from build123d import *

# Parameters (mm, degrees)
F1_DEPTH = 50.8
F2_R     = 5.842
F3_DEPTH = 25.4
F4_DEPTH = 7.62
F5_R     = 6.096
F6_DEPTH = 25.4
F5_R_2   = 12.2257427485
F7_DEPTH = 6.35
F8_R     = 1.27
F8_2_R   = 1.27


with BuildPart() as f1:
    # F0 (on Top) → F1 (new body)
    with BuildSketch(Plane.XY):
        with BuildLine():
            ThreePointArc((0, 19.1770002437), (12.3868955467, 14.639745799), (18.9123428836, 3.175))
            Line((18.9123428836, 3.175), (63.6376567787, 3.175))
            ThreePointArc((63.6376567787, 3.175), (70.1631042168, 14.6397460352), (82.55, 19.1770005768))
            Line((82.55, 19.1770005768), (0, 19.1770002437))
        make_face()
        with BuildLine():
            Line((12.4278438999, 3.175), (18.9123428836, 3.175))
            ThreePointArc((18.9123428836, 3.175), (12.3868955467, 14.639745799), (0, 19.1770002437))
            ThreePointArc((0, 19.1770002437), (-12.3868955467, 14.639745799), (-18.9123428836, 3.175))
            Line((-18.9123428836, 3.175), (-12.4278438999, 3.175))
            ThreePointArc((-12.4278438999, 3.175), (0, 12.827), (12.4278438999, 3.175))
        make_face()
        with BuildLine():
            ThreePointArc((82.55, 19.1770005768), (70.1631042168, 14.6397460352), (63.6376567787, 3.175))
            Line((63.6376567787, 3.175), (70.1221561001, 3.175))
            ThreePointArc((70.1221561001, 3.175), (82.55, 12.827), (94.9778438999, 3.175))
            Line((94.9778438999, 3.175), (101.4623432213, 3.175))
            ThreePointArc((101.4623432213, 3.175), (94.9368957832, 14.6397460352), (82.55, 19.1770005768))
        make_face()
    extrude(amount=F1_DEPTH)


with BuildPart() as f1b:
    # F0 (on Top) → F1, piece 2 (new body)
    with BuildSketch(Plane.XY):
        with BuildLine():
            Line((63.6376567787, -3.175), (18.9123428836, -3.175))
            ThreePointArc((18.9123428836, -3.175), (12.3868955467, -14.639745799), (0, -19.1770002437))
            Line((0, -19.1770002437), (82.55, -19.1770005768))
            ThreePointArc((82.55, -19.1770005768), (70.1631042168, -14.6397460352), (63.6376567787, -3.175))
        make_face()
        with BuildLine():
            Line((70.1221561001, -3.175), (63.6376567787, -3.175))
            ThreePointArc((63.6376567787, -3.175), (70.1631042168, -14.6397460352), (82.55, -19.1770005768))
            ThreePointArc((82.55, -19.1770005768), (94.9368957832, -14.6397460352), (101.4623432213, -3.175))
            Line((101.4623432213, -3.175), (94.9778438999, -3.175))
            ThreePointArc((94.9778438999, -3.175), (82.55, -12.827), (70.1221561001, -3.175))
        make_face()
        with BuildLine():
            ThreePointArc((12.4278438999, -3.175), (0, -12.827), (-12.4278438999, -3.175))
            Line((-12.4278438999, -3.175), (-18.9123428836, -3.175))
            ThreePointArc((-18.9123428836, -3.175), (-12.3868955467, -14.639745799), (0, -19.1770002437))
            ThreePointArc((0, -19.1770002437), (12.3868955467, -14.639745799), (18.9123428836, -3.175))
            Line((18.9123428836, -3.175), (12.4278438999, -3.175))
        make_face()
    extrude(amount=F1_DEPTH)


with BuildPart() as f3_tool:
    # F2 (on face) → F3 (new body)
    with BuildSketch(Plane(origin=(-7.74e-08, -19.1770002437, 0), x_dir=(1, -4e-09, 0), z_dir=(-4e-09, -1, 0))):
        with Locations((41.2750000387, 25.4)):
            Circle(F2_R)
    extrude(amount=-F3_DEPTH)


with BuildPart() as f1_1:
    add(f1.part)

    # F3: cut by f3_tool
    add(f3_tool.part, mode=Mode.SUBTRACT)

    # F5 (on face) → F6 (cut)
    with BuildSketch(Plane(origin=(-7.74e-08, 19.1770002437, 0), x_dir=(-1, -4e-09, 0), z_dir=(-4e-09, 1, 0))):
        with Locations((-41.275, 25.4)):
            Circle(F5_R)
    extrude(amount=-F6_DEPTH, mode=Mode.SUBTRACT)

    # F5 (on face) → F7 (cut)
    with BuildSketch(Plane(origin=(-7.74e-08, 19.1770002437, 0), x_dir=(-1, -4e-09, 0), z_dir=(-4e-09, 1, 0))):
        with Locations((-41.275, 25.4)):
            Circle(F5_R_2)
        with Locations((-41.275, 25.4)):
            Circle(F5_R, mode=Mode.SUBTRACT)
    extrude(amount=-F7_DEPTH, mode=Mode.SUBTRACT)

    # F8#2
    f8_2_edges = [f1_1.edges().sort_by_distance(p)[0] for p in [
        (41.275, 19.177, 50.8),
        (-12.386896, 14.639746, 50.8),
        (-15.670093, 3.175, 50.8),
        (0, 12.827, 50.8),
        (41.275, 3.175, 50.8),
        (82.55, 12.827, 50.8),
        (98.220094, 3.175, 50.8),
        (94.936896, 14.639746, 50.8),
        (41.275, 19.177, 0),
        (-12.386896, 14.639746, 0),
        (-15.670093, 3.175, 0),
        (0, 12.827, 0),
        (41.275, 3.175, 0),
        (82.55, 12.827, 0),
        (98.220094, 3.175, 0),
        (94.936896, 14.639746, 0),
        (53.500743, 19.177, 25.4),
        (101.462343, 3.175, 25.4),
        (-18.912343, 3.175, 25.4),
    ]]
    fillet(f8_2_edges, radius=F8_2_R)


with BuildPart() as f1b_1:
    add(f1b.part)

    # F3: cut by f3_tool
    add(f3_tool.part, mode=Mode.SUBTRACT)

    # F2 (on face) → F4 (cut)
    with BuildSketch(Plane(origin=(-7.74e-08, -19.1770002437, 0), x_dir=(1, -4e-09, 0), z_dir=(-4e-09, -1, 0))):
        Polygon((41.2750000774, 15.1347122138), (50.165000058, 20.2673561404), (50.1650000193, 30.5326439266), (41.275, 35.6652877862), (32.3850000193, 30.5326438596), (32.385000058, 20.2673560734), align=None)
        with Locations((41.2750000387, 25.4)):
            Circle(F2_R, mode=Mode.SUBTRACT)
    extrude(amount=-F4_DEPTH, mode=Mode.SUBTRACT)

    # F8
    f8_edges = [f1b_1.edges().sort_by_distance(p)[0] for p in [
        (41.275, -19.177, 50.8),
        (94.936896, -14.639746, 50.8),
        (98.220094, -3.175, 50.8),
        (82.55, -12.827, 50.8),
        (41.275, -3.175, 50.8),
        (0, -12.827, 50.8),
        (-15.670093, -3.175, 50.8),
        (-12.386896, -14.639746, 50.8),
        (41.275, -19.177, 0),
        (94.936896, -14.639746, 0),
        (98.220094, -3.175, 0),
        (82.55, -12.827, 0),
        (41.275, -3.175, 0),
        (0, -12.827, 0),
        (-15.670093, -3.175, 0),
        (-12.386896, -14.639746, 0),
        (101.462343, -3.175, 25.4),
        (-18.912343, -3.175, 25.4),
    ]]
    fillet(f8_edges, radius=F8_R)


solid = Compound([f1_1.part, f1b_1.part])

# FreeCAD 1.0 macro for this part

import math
import FreeCAD as App
import Part
import Sketcher
from FreeCAD import Vector
Q = App.Units.Quantity


def edges_at(feature, points):
    """Names of the edges that pass closest to the given points."""
    edges = feature.Shape.Edges
    near = lambda p: min(range(len(edges)), key=lambda i: edges[i].distToShape(Part.Vertex(*p))[0])
    return sorted({f"Edge{near(p) + 1}" for p in points})


def add_polygon(sketch, points):
    """Adds a closed chain of lines whose ends are joined by coincident constraints."""
    first, n = sketch.GeometryCount, len(points)
    for a, b in zip(points, points[1:] + points[:1]):
        sketch.addGeometry(Part.LineSegment(App.Vector(*a, 0), App.Vector(*b, 0)), False)
    for i in range(n):
        sketch.addConstraint(Sketcher.Constraint("Coincident", first + i, 2, first + (i + 1) % n, 1))

doc = App.newDocument("Part")
body = doc.addObject("PartDesign::Body", "Body")

# Sketch on XY plane
sketch1 = body.newObject("Sketcher::SketchObject", "Sketch")
sketch1.AttachmentSupport = (doc.getObject("XY_Plane"), [""])
sketch1.MapMode = "FlatFace"
sketch1.addGeometry([
    Part.LineSegment(Vector(83, 19, 0), Vector(0, 19, 0)),  # 0
    Part.ArcOfCircle(Part.Circle(Vector(0, 0, 0), Vector(0, 0, 1), 19), math.radians(90), math.radians(170)),  # 1
    Part.LineSegment(Vector(-19, 3, 0), Vector(-12, 3, 0)),  # 2
    Part.ArcOfCircle(Part.Circle(Vector(0, 0, 0), Vector(0, 0, 1), 13), math.radians(14), math.radians(166)),  # 3
    Part.LineSegment(Vector(12, 3, 0), Vector(70, 3, 0)),  # 4
    Part.ArcOfCircle(Part.Circle(Vector(83, 0, 0), Vector(0, 0, 1), 13), math.radians(14), math.radians(166)),  # 5
    Part.LineSegment(Vector(95, 3, 0), Vector(101, 3, 0)),  # 6
    Part.ArcOfCircle(Part.Circle(Vector(83, 0, 0), Vector(0, 0, 1), 19), math.radians(10), math.radians(90)),  # 7
], False)
sketch1.addConstraint([
    Sketcher.Constraint("Tangent", 0, 2, 1, 1),
    Sketcher.Constraint("Coincident", 1, 2, 2, 1),
    Sketcher.Constraint("Coincident", 2, 2, 3, 2),
    Sketcher.Constraint("Coincident", 3, 1, 4, 1),
    Sketcher.Constraint("Coincident", 4, 2, 5, 2),
    Sketcher.Constraint("Coincident", 5, 1, 6, 1),
    Sketcher.Constraint("Coincident", 6, 2, 7, 1),
    Sketcher.Constraint("Tangent", 7, 2, 0, 1),
    Sketcher.Constraint("Horizontal", 0),
    Sketcher.Constraint("Horizontal", 2),
    Sketcher.Constraint("Horizontal", 4),
    Sketcher.Constraint("Horizontal", 6),
    Sketcher.Constraint("Coincident", 1, 3, -1, 1),
    Sketcher.Constraint("Coincident", 3, 3, -1, 1),
    Sketcher.Constraint("Coincident", 7, 3, 5, 3),
    Sketcher.Constraint("Equal", 3, 5),
    Sketcher.Constraint("Equal", 1, 7),
    Sketcher.Constraint("Horizontal", 2, 2, 3, 1),
    Sketcher.Constraint("Horizontal", 4, 2, 5, 1),
    Sketcher.Constraint("Radius", 1, Q("0.755 in")),
    Sketcher.Constraint("Radius", 3, Q("0.505 in")),
    Sketcher.Constraint("DistanceX", 0, 2, 0, 1, Q("3.25 in")),
    Sketcher.Constraint("DistanceY", 1, 2, 0, 2, Q("0.63 in")),
])
pad1 = body.newObject("PartDesign::Pad", "Pad")
pad1.Profile = sketch1
pad1.Length = Q("2 in")
body2 = doc.addObject("PartDesign::Body", "Body001")

# Sketch on XY plane
sketch2 = body2.newObject("Sketcher::SketchObject", "Sketch001")
sketch2.AttachmentSupport = (doc.getObject("XY_Plane001"), [""])
sketch2.MapMode = "FlatFace"
sketch2.addGeometry([
    Part.LineSegment(Vector(0, -19, 0), Vector(83, -19, 0)),  # 0
    Part.ArcOfCircle(Part.Circle(Vector(83, 0, 0), Vector(0, 0, 1), 19), math.radians(-90), math.radians(-10)),  # 1
    Part.LineSegment(Vector(101, -3, 0), Vector(95, -3, 0)),  # 2
    Part.ArcOfCircle(Part.Circle(Vector(83, 0, 0), Vector(0, 0, 1), 13), math.radians(-166), math.radians(-14)),  # 3
    Part.LineSegment(Vector(70, -3, 0), Vector(12, -3, 0)),  # 4
    Part.ArcOfCircle(Part.Circle(Vector(0, 0, 0), Vector(0, 0, 1), 13), math.radians(-166), math.radians(-14)),  # 5
    Part.LineSegment(Vector(-12, -3, 0), Vector(-19, -3, 0)),  # 6
    Part.ArcOfCircle(Part.Circle(Vector(0, 0, 0), Vector(0, 0, 1), 19), math.radians(-170), math.radians(-90)),  # 7
], False)
sketch2.addConstraint([
    Sketcher.Constraint("Tangent", 0, 2, 1, 1),
    Sketcher.Constraint("Coincident", 1, 2, 2, 1),
    Sketcher.Constraint("Coincident", 2, 2, 3, 2),
    Sketcher.Constraint("Coincident", 3, 1, 4, 1),
    Sketcher.Constraint("Coincident", 4, 2, 5, 2),
    Sketcher.Constraint("Coincident", 5, 1, 6, 1),
    Sketcher.Constraint("Coincident", 6, 2, 7, 1),
    Sketcher.Constraint("Tangent", 7, 2, 0, 1),
    Sketcher.Constraint("Horizontal", 0),
    Sketcher.Constraint("Horizontal", 2),
    Sketcher.Constraint("Horizontal", 4),
    Sketcher.Constraint("Horizontal", 6),
    Sketcher.Constraint("Coincident", 5, 3, -1, 1),
    Sketcher.Constraint("Coincident", 7, 3, -1, 1),
    Sketcher.Constraint("Coincident", 3, 3, 1, 3),
    Sketcher.Constraint("Equal", 3, 5),
    Sketcher.Constraint("Equal", 1, 7),
    Sketcher.Constraint("Horizontal", 2, 2, 3, 1),
    Sketcher.Constraint("Horizontal", 4, 2, 5, 1),
    Sketcher.Constraint("Radius", 1, Q("0.755 in")),
    Sketcher.Constraint("Radius", 3, Q("0.505 in")),
    Sketcher.Constraint("DistanceX", 0, 1, 0, 2, Q("3.25 in")),
    Sketcher.Constraint("DistanceY", 0, 2, 1, 2, Q("0.63 in")),
])
pad2 = body2.newObject("PartDesign::Pad", "Pad001")
pad2.Profile = sketch2
pad2.Length = Q("2 in")
body3 = doc.addObject("PartDesign::Body", "Body002")

# Sketch on XZ plane
sketch3 = body3.newObject("Sketcher::SketchObject", "Sketch002")
sketch3.AttachmentSupport = (doc.getObject("XZ_Plane002"), [""])
sketch3.MapMode = "FlatFace"
sketch3.AttachmentOffset = App.Placement(Vector(0, 0, 0.755 * 25.4), App.Rotation())
sketch3.addGeometry(Part.Circle(Vector(41, 25, 0), Vector(0, 0, 1), 6), False)
sketch3.addConstraint([
    Sketcher.Constraint("Diameter", 0, Q("0.46 in")),
    Sketcher.Constraint("DistanceY", -1, 1, 0, 3, Q("1 in")),
    Sketcher.Constraint("DistanceX", -1, 1, 0, 3, Q("1.625 in")),
])
pad3 = body3.newObject("PartDesign::Pad", "Pad002")
pad3.Profile = sketch3
pad3.Length = Q("1 in")
pad3.Reversed = True
doc.recompute()

body4 = doc.addObject("PartDesign::Body", "Body003")
body4.BaseFeature = body3
boolean = body.newObject("PartDesign::Boolean", "Boolean")
boolean.Type = "Cut"
boolean.addObjects([body4])
doc.recompute()

# Sketch on XZ plane
sketch4 = body.newObject("Sketcher::SketchObject", "Sketch003")
sketch4.AttachmentSupport = (doc.getObject("XZ_Plane"), [""])
sketch4.MapMode = "FlatFace"
sketch4.AttachmentOffset = App.Placement(Vector(0, 0, -0.755 * 25.4), App.Rotation())
sketch4.addGeometry(Part.Circle(Vector(41, 25, 0), Vector(0, 0, 1), 6), False)
sketch4.addConstraint([
    Sketcher.Constraint("Diameter", 0, Q("0.48 in")),
    Sketcher.Constraint("DistanceY", -1, 1, 0, 3, Q("1 in")),
    Sketcher.Constraint("DistanceX", -1, 1, 0, 3, Q("1.625 in")),
])
pocket1 = body.newObject("PartDesign::Pocket", "Pocket")
pocket1.Profile = sketch4
pocket1.Length = Q("1 in")
pocket1.Reversed = True

# Sketch on XZ plane
sketch5 = body.newObject("Sketcher::SketchObject", "Sketch004")
sketch5.AttachmentSupport = (doc.getObject("XZ_Plane"), [""])
sketch5.MapMode = "FlatFace"
sketch5.AttachmentOffset = App.Placement(Vector(0, 0, -0.755 * 25.4), App.Rotation())
sketch5.addGeometry([
    Part.Circle(Vector(41, 25, 0), Vector(0, 0, 1), 12),
    Part.Circle(Vector(41, 25, 0), Vector(0, 0, 1), 6),
], False)
sketch5.addConstraint([
    Sketcher.Constraint("Coincident", 1, 3, 0, 3),
    Sketcher.Constraint("Diameter", 1, Q("0.48 in")),
    Sketcher.Constraint("DistanceY", -1, 1, 0, 3, Q("1 in")),
    Sketcher.Constraint("DistanceX", -1, 1, 0, 3, Q("1.625 in")),
    Sketcher.Constraint("Diameter", 0, Q("24.451485 mm")),
])
pocket2 = body.newObject("PartDesign::Pocket", "Pocket001")
pocket2.Profile = sketch5
pocket2.Length = Q("0.25 in")
pocket2.Reversed = True
doc.recompute()

fillet = body.newObject("PartDesign::Fillet", "Fillet")
fillet.Base = (pocket2, edges_at(pocket2, [
    (41.275, 19.177, 50.8),
    (-12.387, 14.64, 50.8),
    (-15.67, 3.175, 50.8),
    (0, 12.827, 50.8),
    (41.275, 3.175, 50.8),
    (82.55, 12.827, 50.8),
    (98.22, 3.175, 50.8),
    (94.937, 14.64, 50.8),
    (41.275, 19.177, 0),
    (-12.387, 14.64, 0),
    (-15.67, 3.175, 0),
    (0, 12.827, 0),
    (41.275, 3.175, 0),
    (82.55, 12.827, 0),
    (98.22, 3.175, 0),
    (94.937, 14.64, 0),
    (53.501, 19.177, 25.4),
    (101.462, 3.175, 25.4),
    (-18.912, 3.175, 25.4),
]))
fillet.Radius = Q("0.05 in")
doc.recompute()

boolean2 = body2.newObject("PartDesign::Boolean", "Boolean001")
boolean2.Type = "Cut"
boolean2.addObjects([body3])

# Sketch on XZ plane
sketch6 = body2.newObject("Sketcher::SketchObject", "Sketch005")
sketch6.AttachmentSupport = (doc.getObject("XZ_Plane001"), [""])
sketch6.MapMode = "FlatFace"
sketch6.AttachmentOffset = App.Placement(Vector(0, 0, 0.755 * 25.4), App.Rotation())
add_polygon(sketch6, [(41, 15), (50, 20), (50, 31), (41, 36), (32, 31), (32, 20)])  # lines 0-5
sketch6.addGeometry(Part.Circle(Vector(41, 25, 0), Vector(0, 0, 1), 6), False)  # 6
sketch6.addConstraint([
    Sketcher.Constraint("Vertical", 1),
    Sketcher.Constraint("Vertical", 4),
    Sketcher.Constraint("Parallel", 0, 3),
    Sketcher.Constraint("Parallel", 2, 5),
    Sketcher.Constraint("Horizontal", 1, 2, 3, 2),
    Sketcher.Constraint("Horizontal", 0, 2, 4, 2),
    Sketcher.Constraint("Vertical", 6, 3, 2, 2),
    Sketcher.Constraint("Vertical", 2, 2, 5, 2),
    Sketcher.Constraint("Diameter", 6, Q("0.46 in")),
    Sketcher.Constraint("DistanceY", -1, 1, 6, 3, Q("1 in")),
    Sketcher.Constraint("Angle", 0, Q("30 deg")),
    Sketcher.Constraint("DistanceX", 3, 2, 1, 2, Q("0.7 in")),
    Sketcher.Constraint("DistanceX", -1, 1, 6, 3, Q("1.625 in")),
    Sketcher.Constraint("DistanceY", 1, 1, 1, 2, Q("10.265288 mm")),
    Sketcher.Constraint("DistanceY", -1, 1, 0, 2, Q("20.267356 mm")),
])
pocket3 = body2.newObject("PartDesign::Pocket", "Pocket002")
pocket3.Profile = sketch6
pocket3.Length = Q("0.3 in")
doc.recompute()

fillet2 = body2.newObject("PartDesign::Fillet", "Fillet001")
fillet2.Base = (pocket3, edges_at(pocket3, [
    (41.275, -19.177, 50.8),
    (94.937, -14.64, 50.8),
    (98.22, -3.175, 50.8),
    (82.55, -12.827, 50.8),
    (41.275, -3.175, 50.8),
    (0, -12.827, 50.8),
    (-15.67, -3.175, 50.8),
    (-12.387, -14.64, 50.8),
    (41.275, -19.177, 0),
    (94.937, -14.64, 0),
    (98.22, -3.175, 0),
    (82.55, -12.827, 0),
    (41.275, -3.175, 0),
    (0, -12.827, 0),
    (-15.67, -3.175, 0),
    (-12.387, -14.64, 0),
    (101.462, -3.175, 25.4),
    (-18.912, -3.175, 25.4),
]))
fillet2.Radius = Q("0.05 in")

doc.recompute()
